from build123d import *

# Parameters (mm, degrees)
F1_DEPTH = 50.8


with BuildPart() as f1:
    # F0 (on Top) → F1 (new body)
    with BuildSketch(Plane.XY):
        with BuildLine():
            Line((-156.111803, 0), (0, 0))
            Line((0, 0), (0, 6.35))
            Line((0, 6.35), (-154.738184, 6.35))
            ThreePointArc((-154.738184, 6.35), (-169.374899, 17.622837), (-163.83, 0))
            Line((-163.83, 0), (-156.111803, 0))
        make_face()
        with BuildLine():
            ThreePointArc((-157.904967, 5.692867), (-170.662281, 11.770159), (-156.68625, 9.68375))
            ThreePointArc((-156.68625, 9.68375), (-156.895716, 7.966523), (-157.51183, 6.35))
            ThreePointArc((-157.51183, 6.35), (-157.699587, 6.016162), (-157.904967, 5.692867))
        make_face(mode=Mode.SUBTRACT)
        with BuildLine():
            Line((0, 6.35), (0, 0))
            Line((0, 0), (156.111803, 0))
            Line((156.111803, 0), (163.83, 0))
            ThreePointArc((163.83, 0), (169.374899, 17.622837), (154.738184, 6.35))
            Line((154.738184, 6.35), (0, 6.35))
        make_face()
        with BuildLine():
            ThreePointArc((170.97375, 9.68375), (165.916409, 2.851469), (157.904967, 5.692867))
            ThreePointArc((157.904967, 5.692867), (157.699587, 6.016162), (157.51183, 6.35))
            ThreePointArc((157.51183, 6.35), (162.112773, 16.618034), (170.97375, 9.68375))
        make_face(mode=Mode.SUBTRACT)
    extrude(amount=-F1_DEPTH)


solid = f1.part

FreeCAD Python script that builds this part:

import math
import FreeCAD as App
import Part
import Sketcher
Q = App.Units.Quantity

doc = App.newDocument("Part")
body = doc.addObject("PartDesign::Body", "Body")

# Sketch on XY plane
sketch1 = body.newObject("Sketcher::SketchObject", "Sketch")
sketch1.AttachmentSupport = (doc.getObject("XY_Plane"), [""])
sketch1.MapMode = "FlatFace"
sketch1.addGeometry(Part.LineSegment(App.Vector(-163.83, 0, 0), App.Vector(163.83, 0, 0)), False)
sketch1.addGeometry(Part.ArcOfCircle(Part.Circle(App.Vector(163.83, 9.68375, 0), App.Vector(0, 0, 1), 9.68375), math.radians(-90.000001), math.radians(200.136769)), False)
sketch1.addGeometry(Part.LineSegment(App.Vector(154.738184, 6.35, 0), App.Vector(-154.738184, 6.35, 0)), False)
sketch1.addGeometry(Part.ArcOfCircle(Part.Circle(App.Vector(-163.83, 9.68375, 0), App.Vector(0, 0, 1), 9.68375), math.radians(-20.136769), math.radians(270.000001)), False)
sketch1.addGeometry(Part.ArcOfCircle(Part.Circle(App.Vector(163.83, 9.68375, 0), App.Vector(0, 0, 1), 7.14375), math.radians(0), math.radians(207.81814)), False)
sketch1.addGeometry(Part.ArcOfCircle(Part.Circle(App.Vector(163.83, 9.68375, 0), App.Vector(0, 0, 1), 7.14375), math.radians(-146.037252), math.radians(0.000002)), False)
sketch1.addGeometry(Part.ArcOfCircle(Part.Circle(App.Vector(163.829871, 9.683671, 0), App.Vector(0, 0, 1), 7.143599), math.radians(-152.181935), math.radians(-146.037196)), False)
sketch1.addGeometry(Part.ArcOfCircle(Part.Circle(App.Vector(-163.829871, 9.683671, 0), App.Vector(0, 0, 1), 7.143599), math.radians(-33.962804), math.radians(-27.818065)), False)
sketch1.addGeometry(Part.ArcOfCircle(Part.Circle(App.Vector(-163.83, 9.68375, 0), App.Vector(0, 0, 1), 7.14375), math.radians(-0.000001), math.radians(326.03725)), False)
sketch1.addGeometry(Part.ArcOfCircle(Part.Circle(App.Vector(-163.829999, 9.68375, 0), App.Vector(0, 0, 1), 7.143749), math.radians(-27.818146), math.radians(-0.000001)), False)
sketch1.addConstraint(Sketcher.Constraint("Coincident", 0, 2, 1, 1))
sketch1.addConstraint(Sketcher.Constraint("Coincident", 1, 2, 2, 1))
sketch1.addConstraint(Sketcher.Constraint("Coincident", 2, 2, 3, 1))
sketch1.addConstraint(Sketcher.Constraint("Coincident", 3, 2, 0, 1))
sketch1.addConstraint(Sketcher.Constraint("Coincident", 4, 1, 5, 2))
sketch1.addConstraint(Sketcher.Constraint("Coincident", 5, 1, 6, 2))
sketch1.addConstraint(Sketcher.Constraint("Coincident", 6, 1, 4, 2))
sketch1.addConstraint(Sketcher.Constraint("Coincident", 7, 1, 8, 2))
sketch1.addConstraint(Sketcher.Constraint("Coincident", 8, 1, 9, 2))
sketch1.addConstraint(Sketcher.Constraint("Coincident", 9, 1, 7, 2))
sketch1.addConstraint(Sketcher.Constraint("Horizontal", 0))
sketch1.addConstraint(Sketcher.Constraint("Horizontal", 2))
sketch1.addConstraint(Sketcher.Constraint("Coincident", 4, 3, 1, 3))
sketch1.addConstraint(Sketcher.Constraint("Coincident", 5, 3, 1, 3))
sketch1.addConstraint(Sketcher.Constraint("Coincident", 8, 3, 3, 3))
sketch1.addConstraint(Sketcher.Constraint("Coincident", 9, 3, 3, 3))
sketch1.addConstraint(Sketcher.Constraint("PointOnObject", 0, 2, -1))
sketch1.addConstraint(Sketcher.Constraint("DistanceX", 0, 1, 0, 2, Q("12.9 in")))
sketch1.addConstraint(Sketcher.Constraint("Radius", 4, Q("0.28125 in")))
sketch1.addConstraint(Sketcher.Constraint("Radius", 8, Q("0.28125 in")))
sketch1.addConstraint(Sketcher.Constraint("DistanceX", 3, 3, 1, 3, Q("12.9 in")))
sketch1.addConstraint(Sketcher.Constraint("DistanceX", -1, 1, 1, 3, Q("6.45 in")))
sketch1.addConstraint(Sketcher.Constraint("DistanceX", -1, 1, 0, 2, Q("6.45 in")))
sketch1.addConstraint(Sketcher.Constraint("DistanceY", -1, 1, 1, 2, Q("0.25 in")))
sketch1.addConstraint(Sketcher.Constraint("DistanceY", -1, 1, 6, 1, Q("0.25 in")))
sketch1.addConstraint(Sketcher.Constraint("DistanceY", -1, 1, 9, 1, Q("0.25 in")))
sketch1.addConstraint(Sketcher.Constraint("Radius", 6, Q("7.143599 mm")))
sketch1.addConstraint(Sketcher.Constraint("Radius", 7, Q("7.143599 mm")))
sketch1.addConstraint(Sketcher.Constraint("Radius", 1, Q("9.68375 mm")))
sketch1.addConstraint(Sketcher.Constraint("Radius", 3, Q("9.68375 mm")))
sketch1.addConstraint(Sketcher.Constraint("DistanceY", -1, 1, 4, 1, Q("9.68375 mm")))
sketch1.addConstraint(Sketcher.Constraint("DistanceY", -1, 1, 8, 1, Q("9.68375 mm")))
sketch1.addConstraint(Sketcher.Constraint("DistanceX", 9, 3, 7, 1, Q("5.925032 mm")))
sketch1.addConstraint(Sketcher.Constraint("DistanceX", -1, 1, 5, 1, Q("157.904967 mm")))
pad1 = body.newObject("PartDesign::Pad", "Pad")
pad1.Profile = sketch1
pad1.Length = Q("2 in")
pad1.Reversed = True

doc.recompute()
